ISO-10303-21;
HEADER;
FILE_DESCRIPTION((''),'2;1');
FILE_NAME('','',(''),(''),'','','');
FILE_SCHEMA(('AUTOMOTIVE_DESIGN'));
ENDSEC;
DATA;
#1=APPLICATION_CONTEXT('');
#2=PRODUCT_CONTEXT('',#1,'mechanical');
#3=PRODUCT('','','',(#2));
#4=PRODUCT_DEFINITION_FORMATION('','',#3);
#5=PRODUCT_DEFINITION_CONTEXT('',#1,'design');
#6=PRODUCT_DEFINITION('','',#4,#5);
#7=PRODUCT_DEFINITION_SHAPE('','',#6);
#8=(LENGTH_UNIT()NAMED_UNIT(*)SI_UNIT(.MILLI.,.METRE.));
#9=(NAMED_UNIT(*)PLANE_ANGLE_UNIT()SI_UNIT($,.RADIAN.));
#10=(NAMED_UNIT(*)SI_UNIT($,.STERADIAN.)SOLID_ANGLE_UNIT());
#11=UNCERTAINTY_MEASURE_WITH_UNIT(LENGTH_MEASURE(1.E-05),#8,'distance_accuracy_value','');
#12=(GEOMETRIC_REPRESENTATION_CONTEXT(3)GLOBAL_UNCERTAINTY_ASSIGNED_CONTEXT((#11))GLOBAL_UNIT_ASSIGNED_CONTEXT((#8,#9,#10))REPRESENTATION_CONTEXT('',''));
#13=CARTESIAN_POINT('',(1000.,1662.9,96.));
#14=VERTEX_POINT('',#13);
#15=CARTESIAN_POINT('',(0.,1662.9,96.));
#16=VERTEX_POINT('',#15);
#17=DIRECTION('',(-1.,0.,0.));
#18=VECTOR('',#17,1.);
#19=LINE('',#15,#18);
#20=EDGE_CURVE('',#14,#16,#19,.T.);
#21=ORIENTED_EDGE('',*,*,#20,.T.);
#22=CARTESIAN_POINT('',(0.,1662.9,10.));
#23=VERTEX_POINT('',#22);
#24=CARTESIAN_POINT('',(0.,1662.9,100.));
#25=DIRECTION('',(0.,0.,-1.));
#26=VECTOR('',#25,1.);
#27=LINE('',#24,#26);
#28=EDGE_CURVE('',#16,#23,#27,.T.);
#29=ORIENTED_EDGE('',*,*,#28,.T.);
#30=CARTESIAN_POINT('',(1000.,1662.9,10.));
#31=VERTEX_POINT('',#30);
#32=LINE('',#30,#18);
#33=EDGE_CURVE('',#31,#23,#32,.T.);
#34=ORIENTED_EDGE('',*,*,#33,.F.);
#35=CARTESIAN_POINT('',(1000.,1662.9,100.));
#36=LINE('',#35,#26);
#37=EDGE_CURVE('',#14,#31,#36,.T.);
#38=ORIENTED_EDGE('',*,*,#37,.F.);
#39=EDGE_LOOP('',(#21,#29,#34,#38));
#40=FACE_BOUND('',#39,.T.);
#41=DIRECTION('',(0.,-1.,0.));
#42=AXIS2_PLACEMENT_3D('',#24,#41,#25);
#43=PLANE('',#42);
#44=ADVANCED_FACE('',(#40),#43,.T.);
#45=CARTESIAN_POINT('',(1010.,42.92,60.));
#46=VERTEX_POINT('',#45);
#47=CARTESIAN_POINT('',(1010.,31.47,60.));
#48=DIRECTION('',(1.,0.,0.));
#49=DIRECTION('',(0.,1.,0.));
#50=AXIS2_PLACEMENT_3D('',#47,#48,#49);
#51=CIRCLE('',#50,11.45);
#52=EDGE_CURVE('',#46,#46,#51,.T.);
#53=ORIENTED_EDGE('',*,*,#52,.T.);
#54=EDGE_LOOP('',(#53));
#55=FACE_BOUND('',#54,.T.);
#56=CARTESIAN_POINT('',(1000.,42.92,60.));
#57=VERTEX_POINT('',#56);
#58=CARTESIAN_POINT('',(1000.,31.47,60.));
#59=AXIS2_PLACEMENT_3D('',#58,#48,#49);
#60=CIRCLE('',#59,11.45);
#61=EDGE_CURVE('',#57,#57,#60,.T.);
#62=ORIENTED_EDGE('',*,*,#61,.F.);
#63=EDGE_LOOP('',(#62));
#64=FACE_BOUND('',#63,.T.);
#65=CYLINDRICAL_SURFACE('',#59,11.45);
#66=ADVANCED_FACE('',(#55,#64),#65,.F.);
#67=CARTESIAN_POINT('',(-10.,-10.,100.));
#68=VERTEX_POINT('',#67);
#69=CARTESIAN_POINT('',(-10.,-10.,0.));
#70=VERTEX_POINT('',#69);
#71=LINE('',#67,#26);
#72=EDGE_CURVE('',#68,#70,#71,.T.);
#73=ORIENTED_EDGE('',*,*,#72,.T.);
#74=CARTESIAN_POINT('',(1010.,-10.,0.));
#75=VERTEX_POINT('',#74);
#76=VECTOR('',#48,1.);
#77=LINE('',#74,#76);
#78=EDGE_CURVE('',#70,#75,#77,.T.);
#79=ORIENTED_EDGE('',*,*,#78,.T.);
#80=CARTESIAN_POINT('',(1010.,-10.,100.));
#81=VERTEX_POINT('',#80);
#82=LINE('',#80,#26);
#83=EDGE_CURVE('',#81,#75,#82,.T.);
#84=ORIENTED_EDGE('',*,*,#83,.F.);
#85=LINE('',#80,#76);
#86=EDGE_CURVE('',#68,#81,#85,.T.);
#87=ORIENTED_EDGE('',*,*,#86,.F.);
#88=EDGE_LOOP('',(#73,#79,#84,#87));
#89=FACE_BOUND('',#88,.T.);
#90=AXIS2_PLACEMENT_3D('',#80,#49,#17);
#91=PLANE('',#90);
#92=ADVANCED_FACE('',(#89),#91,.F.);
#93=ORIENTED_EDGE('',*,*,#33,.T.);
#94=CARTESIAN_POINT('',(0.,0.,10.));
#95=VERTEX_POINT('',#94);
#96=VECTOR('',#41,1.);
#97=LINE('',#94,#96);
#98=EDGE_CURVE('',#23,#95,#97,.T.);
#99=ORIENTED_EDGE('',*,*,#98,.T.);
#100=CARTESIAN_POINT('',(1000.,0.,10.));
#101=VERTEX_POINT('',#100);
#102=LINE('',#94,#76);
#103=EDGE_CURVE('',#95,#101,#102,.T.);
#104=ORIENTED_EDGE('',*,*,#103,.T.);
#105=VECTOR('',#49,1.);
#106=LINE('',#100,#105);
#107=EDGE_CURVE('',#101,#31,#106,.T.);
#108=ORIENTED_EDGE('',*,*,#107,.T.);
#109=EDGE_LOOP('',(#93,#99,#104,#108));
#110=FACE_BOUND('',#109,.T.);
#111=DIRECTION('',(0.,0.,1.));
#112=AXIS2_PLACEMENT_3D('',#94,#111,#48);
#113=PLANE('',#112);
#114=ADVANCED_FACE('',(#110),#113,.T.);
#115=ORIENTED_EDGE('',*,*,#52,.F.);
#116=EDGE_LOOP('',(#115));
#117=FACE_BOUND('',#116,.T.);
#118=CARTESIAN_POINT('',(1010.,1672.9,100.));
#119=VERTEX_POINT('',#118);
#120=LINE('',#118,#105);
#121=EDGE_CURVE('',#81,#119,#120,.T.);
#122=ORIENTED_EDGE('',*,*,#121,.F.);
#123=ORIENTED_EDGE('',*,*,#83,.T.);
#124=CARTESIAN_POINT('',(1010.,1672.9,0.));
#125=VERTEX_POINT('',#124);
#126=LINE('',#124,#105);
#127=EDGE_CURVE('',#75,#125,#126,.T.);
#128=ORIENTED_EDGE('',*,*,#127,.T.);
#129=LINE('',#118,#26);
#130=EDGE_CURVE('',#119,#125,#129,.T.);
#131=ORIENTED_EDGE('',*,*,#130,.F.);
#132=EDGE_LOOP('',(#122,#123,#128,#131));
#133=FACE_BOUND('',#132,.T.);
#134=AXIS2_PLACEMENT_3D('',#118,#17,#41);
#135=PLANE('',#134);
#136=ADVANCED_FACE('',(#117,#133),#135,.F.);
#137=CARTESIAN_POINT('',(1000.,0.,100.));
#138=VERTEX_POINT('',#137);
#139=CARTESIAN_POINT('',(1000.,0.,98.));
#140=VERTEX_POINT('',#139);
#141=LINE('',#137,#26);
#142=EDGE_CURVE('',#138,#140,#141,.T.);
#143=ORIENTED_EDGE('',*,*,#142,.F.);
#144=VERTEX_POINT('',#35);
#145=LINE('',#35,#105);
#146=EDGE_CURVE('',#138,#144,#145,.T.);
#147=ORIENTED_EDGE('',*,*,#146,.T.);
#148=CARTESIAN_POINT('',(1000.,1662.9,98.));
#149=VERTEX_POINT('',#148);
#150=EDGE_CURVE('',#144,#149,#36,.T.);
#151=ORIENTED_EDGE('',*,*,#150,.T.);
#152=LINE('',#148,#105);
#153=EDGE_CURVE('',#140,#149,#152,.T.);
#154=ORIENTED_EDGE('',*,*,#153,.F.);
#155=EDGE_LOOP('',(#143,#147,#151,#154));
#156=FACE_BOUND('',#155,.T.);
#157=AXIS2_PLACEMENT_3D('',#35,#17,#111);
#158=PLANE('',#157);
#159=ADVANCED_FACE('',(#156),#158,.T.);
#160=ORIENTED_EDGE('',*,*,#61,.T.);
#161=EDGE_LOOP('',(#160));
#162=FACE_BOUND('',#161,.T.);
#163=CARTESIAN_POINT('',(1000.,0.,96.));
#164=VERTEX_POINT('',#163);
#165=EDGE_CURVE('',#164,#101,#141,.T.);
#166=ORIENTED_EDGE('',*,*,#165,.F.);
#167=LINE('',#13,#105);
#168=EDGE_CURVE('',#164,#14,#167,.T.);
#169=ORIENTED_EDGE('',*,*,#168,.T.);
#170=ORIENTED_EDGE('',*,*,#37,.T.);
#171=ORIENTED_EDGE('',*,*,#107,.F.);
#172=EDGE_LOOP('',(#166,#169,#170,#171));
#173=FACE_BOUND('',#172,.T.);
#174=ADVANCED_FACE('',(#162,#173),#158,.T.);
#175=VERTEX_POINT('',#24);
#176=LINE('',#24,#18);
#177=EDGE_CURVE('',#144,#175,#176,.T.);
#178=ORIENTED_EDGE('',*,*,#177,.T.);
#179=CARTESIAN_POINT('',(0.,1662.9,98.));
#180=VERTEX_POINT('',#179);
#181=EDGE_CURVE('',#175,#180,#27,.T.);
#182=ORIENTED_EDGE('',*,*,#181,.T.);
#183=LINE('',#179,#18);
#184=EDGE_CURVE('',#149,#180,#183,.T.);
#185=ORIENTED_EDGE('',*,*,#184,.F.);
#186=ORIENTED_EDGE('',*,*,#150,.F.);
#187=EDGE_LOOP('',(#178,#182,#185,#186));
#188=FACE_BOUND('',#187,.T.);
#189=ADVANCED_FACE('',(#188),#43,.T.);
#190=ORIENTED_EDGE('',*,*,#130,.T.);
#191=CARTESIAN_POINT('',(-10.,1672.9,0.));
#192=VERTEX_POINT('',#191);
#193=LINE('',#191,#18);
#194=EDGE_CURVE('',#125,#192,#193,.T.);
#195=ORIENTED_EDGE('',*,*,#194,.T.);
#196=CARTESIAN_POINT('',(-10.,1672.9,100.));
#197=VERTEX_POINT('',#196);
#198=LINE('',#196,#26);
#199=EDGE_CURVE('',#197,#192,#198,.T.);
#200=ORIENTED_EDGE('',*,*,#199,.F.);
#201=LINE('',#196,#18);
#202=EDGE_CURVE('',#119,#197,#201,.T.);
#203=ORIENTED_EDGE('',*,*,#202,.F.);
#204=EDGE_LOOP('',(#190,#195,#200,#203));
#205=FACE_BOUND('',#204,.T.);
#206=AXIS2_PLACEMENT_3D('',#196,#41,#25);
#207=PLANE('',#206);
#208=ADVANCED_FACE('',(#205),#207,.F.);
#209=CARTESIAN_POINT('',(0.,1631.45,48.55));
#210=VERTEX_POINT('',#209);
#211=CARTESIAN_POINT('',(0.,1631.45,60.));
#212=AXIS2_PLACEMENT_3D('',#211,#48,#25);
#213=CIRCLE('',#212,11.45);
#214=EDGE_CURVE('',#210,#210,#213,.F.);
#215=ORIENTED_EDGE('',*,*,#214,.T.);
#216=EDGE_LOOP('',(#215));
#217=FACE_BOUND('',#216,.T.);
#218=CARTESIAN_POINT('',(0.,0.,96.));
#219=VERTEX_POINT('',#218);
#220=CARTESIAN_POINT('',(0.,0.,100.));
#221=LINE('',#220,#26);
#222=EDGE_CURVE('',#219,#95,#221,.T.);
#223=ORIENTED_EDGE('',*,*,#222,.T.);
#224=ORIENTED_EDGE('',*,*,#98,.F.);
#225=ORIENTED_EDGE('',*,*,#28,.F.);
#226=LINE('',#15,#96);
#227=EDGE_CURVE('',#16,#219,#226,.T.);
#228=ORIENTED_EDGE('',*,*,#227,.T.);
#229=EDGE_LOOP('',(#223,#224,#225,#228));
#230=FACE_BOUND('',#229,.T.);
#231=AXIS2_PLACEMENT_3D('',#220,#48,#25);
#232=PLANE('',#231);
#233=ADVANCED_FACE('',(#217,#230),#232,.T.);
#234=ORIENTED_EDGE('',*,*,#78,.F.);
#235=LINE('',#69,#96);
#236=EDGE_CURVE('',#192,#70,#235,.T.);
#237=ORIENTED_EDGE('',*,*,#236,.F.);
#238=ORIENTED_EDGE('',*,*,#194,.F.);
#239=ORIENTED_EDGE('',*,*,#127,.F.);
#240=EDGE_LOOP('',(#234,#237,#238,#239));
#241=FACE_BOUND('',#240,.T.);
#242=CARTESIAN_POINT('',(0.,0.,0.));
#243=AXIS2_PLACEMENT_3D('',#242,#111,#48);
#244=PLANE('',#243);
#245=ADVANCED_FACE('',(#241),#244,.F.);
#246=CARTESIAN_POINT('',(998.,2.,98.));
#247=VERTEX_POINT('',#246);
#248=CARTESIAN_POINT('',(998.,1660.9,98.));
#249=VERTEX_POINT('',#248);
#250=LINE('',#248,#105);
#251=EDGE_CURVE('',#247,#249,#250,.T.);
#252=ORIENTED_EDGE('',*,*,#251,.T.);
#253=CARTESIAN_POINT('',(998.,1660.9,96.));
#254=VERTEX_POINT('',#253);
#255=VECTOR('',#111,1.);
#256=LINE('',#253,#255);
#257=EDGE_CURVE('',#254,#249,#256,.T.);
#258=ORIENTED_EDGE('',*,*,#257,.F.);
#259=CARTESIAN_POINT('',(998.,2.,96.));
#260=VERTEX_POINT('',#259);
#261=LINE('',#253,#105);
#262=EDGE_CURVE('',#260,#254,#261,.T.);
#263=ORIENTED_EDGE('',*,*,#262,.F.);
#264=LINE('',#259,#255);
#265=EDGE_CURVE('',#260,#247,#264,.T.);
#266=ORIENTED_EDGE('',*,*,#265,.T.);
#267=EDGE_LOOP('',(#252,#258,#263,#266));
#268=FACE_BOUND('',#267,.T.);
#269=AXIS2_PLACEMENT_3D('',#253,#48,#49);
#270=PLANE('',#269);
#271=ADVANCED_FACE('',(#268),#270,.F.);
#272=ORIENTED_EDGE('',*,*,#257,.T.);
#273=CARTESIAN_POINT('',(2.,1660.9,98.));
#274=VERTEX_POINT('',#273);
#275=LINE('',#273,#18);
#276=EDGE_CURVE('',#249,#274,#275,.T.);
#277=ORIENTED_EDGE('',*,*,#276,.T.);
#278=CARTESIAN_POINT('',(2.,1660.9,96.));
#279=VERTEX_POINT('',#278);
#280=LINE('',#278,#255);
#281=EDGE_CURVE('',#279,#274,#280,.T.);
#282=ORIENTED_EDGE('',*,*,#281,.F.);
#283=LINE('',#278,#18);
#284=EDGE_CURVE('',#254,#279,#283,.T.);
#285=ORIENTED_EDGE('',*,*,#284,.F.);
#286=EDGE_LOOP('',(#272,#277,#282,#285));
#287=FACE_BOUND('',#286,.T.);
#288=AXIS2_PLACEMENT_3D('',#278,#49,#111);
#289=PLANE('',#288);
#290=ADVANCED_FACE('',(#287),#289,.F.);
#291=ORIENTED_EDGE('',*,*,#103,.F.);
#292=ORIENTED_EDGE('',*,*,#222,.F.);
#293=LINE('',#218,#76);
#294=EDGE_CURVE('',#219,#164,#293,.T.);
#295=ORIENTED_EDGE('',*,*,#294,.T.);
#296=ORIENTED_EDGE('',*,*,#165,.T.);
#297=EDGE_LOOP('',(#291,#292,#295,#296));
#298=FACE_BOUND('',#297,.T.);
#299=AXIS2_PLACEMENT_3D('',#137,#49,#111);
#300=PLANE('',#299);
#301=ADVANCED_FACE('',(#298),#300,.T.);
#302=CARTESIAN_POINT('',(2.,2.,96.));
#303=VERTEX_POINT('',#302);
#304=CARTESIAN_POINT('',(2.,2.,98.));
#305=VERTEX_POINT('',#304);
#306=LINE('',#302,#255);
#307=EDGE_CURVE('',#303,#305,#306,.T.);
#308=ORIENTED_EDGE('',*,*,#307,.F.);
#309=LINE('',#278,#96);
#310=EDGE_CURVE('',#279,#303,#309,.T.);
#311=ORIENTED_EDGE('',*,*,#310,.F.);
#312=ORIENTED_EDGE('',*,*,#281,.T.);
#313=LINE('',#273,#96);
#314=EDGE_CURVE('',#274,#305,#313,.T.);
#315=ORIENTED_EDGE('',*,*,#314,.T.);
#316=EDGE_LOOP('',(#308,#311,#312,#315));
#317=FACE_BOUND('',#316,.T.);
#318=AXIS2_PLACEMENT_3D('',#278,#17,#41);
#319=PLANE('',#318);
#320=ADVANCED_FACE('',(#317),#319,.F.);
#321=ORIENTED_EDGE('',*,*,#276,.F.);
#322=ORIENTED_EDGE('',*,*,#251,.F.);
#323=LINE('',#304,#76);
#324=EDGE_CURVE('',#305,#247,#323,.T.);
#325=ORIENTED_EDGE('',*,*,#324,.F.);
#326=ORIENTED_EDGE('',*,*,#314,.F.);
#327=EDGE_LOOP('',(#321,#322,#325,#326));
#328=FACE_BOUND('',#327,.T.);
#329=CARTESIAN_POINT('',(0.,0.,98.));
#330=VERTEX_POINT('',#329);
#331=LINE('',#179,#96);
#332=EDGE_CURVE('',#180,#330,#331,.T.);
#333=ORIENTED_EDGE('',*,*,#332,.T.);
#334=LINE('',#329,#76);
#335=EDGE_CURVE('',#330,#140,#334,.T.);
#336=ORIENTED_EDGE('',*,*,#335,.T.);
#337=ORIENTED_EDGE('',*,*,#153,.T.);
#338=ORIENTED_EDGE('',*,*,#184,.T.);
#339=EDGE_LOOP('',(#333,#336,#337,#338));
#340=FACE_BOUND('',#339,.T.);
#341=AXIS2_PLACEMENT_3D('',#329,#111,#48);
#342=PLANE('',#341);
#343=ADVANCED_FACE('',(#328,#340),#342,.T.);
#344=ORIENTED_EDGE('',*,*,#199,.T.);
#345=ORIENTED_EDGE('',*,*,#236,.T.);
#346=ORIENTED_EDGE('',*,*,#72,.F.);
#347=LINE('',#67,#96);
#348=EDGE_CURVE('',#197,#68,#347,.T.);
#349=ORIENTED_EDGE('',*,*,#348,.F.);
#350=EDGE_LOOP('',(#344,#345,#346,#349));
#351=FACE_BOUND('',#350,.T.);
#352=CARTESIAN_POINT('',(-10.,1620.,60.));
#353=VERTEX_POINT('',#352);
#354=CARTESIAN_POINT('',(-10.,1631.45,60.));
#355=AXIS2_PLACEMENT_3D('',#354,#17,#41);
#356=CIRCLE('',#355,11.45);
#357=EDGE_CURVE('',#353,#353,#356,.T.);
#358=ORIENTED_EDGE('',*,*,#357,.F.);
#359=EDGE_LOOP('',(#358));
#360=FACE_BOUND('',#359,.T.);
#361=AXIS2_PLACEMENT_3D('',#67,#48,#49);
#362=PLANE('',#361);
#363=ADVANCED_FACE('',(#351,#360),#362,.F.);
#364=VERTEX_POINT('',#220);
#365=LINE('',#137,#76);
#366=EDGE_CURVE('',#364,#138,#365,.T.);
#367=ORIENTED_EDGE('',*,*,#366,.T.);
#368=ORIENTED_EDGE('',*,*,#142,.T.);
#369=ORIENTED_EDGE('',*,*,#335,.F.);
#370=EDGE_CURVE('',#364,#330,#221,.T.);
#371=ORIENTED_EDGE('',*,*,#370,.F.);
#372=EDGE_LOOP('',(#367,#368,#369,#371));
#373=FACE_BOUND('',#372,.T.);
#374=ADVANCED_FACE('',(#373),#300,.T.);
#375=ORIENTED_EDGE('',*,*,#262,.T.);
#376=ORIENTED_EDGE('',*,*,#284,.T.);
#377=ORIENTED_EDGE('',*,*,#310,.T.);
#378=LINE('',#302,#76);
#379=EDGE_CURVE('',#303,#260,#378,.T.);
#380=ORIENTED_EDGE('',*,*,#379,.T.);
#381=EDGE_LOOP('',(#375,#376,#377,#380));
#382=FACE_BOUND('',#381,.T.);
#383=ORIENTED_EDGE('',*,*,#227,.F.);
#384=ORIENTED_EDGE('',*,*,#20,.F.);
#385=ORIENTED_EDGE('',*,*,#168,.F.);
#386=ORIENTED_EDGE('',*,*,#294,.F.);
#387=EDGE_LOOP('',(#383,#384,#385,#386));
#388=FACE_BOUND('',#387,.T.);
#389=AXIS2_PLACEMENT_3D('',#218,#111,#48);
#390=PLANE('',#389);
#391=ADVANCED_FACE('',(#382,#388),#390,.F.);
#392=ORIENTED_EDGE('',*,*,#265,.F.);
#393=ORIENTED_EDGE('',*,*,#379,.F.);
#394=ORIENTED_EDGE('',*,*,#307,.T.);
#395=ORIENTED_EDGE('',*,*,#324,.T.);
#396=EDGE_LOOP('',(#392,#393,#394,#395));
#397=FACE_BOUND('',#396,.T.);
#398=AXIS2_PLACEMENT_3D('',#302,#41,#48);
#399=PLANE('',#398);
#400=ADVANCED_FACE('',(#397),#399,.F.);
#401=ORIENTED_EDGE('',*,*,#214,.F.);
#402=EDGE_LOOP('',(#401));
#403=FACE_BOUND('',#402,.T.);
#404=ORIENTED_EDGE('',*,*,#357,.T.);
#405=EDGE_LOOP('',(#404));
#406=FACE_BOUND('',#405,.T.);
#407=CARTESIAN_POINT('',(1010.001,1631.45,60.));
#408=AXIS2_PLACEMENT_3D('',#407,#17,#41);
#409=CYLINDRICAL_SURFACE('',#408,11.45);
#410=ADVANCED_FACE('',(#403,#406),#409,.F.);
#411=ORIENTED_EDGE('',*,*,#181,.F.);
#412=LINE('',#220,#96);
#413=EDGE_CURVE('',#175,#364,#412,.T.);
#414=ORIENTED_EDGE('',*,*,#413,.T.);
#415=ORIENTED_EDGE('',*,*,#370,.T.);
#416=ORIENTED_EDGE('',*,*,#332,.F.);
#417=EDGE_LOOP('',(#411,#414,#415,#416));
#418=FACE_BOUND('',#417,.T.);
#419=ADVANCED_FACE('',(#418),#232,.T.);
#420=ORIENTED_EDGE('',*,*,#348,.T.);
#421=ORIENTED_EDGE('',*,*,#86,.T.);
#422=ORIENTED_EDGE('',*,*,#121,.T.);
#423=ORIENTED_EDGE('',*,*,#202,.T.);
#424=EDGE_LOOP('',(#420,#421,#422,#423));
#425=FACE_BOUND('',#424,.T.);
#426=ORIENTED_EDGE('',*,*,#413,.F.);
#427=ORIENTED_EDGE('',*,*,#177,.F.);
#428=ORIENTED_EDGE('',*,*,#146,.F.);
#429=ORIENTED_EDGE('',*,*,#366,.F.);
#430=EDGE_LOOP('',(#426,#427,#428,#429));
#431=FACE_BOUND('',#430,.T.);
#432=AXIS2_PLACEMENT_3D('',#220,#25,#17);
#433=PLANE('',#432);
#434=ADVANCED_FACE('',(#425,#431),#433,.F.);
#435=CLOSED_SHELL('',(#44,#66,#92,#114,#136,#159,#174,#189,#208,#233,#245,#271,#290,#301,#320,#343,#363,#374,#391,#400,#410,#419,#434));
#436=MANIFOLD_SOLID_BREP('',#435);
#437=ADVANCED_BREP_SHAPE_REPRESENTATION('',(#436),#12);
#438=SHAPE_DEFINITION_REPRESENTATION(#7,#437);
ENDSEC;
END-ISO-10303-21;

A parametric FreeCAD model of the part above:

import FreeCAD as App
import Part
import Sketcher


def add_polygon(sketch, points):
    """Adds a closed chain of lines whose ends are joined by coincident constraints."""
    first, n = sketch.GeometryCount, len(points)
    for a, b in zip(points, points[1:] + points[:1]):
        sketch.addGeometry(Part.LineSegment(App.Vector(*a, 0), App.Vector(*b, 0)), False)
    for i in range(n):
        sketch.addConstraint(Sketcher.Constraint("Coincident", first + i, 2, first + (i + 1) % n, 1))

doc = App.newDocument("Part")
params = doc.addObject("Spreadsheet::Sheet", "Params")
for row, (alias, value) in enumerate([
    ("sketch1_width", "1000 mm"),
    ("sketch1_height", "1662.9 mm"),
    ("pad1_length", "10 mm"),
    ("sketch2_width", "1020 mm"),
    ("sketch2_width2", "1000 mm"),
    ("sketch2_height", "1682.9 mm"),
    ("sketch2_height2", "1662.9 mm"),
    ("pad2_length", "100 mm"),
    ("sketch3_diameter", "22.9 mm"),
    ("sketch4_diameter", "22.9 mm"),
    ("pocket2_length", "10 mm"),
    ("sketch5_width", "1000 mm"),
    ("sketch5_width2", "996 mm"),
    ("sketch5_height", "1662.9 mm"),
    ("sketch5_height2", "1658.9 mm"),
    ("pad3_length", "2 mm"),
], start=1):
    params.set(f"A{row}", alias)
    params.set(f"B{row}", "=" + value)
    params.setAlias(f"B{row}", alias)

body = doc.addObject("PartDesign::Body", "Body")

# Sketch on XY plane
sketch1 = body.newObject("Sketcher::SketchObject", "Sketch")
sketch1.AttachmentSupport = (doc.getObject("XY_Plane"), [""])
sketch1.MapMode = "FlatFace"
add_polygon(sketch1, [(0, 1663), (0, 0), (1000, 0), (1000, 1663)])  # lines 0-3
sketch1.addConstraint([
    Sketcher.Constraint("Vertical", 0),
    Sketcher.Constraint("Horizontal", 1),
    Sketcher.Constraint("Vertical", 2),
    Sketcher.Constraint("Horizontal", 3),
    Sketcher.Constraint("Coincident", 0, 2, -1, 1),
    Sketcher.Constraint("DistanceX", 1, 1, 1, 2, 1000.0),
    Sketcher.Constraint("DistanceY", 0, 2, 0, 1, 1662.9),
])
sketch1.setExpression("Constraints[9]", "Params.sketch1_width")
sketch1.setExpression("Constraints[10]", "Params.sketch1_height")
pad1 = body.newObject("PartDesign::Pad", "Pad")
pad1.Profile = sketch1
pad1.setExpression("Length", "Params.pad1_length")

# Sketch on XY plane
sketch2 = body.newObject("Sketcher::SketchObject", "Sketch001")
sketch2.AttachmentSupport = (doc.getObject("XY_Plane"), [""])
sketch2.MapMode = "FlatFace"
add_polygon(sketch2, [(-10, 1673), (-10, -10), (1010, -10), (1010, 1673)])  # lines 0-3
add_polygon(sketch2, [(1000, 0), (0, 0), (0, 1663), (1000, 1663)])  # lines 4-7
sketch2.addConstraint([
    Sketcher.Constraint("Vertical", 0),
    Sketcher.Constraint("Horizontal", 1),
    Sketcher.Constraint("Vertical", 2),
    Sketcher.Constraint("Horizontal", 3),
    Sketcher.Constraint("Horizontal", 4),
    Sketcher.Constraint("Vertical", 5),
    Sketcher.Constraint("Horizontal", 6),
    Sketcher.Constraint("Vertical", 7),
    Sketcher.Constraint("Coincident", 4, 2, -1, 1),
    Sketcher.Constraint("DistanceX", 1, 1, 1, 2, 1020.0),
    Sketcher.Constraint("DistanceX", 4, 2, 4, 1, 1000.0),
    Sketcher.Constraint("DistanceY", 0, 2, 0, 1, 1682.9),
    Sketcher.Constraint("DistanceY", 5, 1, 5, 2, 1662.9),
    Sketcher.Constraint("DistanceX", 0, 2, -1, 1, 10.0),
    Sketcher.Constraint("DistanceY", 0, 2, -1, 1, 10.0),
])
sketch2.setExpression("Constraints[17]", "Params.sketch2_width")
sketch2.setExpression("Constraints[18]", "Params.sketch2_width2")
sketch2.setExpression("Constraints[19]", "Params.sketch2_height")
sketch2.setExpression("Constraints[20]", "Params.sketch2_height2")
pad2 = body.newObject("PartDesign::Pad", "Pad001")
pad2.Profile = sketch2
pad2.setExpression("Length", "Params.pad2_length")

# Sketch on YZ plane
sketch3 = body.newObject("Sketcher::SketchObject", "Sketch002")
sketch3.AttachmentSupport = (doc.getObject("YZ_Plane"), [""])
sketch3.MapMode = "FlatFace"
sketch3.AttachmentOffset = App.Placement(App.Vector(0, 0, -10), App.Rotation())
sketch3.addGeometry(Part.Circle(App.Vector(1631, 60, 0), App.Vector(0, 0, 1), 11), False)
sketch3.addConstraint([
    Sketcher.Constraint("Diameter", 0, 22.9),
    Sketcher.Constraint("DistanceY", -1, 1, 0, 3, 60.0),
    Sketcher.Constraint("DistanceX", -1, 1, 0, 3, 1631.45),
])
sketch3.setExpression("Constraints[0]", "Params.sketch3_diameter")
pocket1 = body.newObject("PartDesign::Pocket", "Pocket")
pocket1.Profile = sketch3
pocket1.Type = "UpToFirst"
pocket1.Reversed = True

# Sketch on YZ plane
sketch4 = body.newObject("Sketcher::SketchObject", "Sketch003")
sketch4.AttachmentSupport = (doc.getObject("YZ_Plane"), [""])
sketch4.MapMode = "FlatFace"
sketch4.AttachmentOffset = App.Placement(App.Vector(0, 0, 1010), App.Rotation())
sketch4.addGeometry(Part.Circle(App.Vector(31, 60, 0), App.Vector(0, 0, 1), 11), False)
sketch4.addConstraint([
    Sketcher.Constraint("Diameter", 0, 22.9),
    Sketcher.Constraint("DistanceY", -1, 1, 0, 3, 60.0),
    Sketcher.Constraint("DistanceX", -1, 1, 0, 3, 31.47),
])
sketch4.setExpression("Constraints[0]", "Params.sketch4_diameter")
pocket2 = body.newObject("PartDesign::Pocket", "Pocket001")
pocket2.Profile = sketch4
pocket2.setExpression("Length", "Params.pocket2_length")

# Sketch on XY plane
sketch5 = body.newObject("Sketcher::SketchObject", "Sketch004")
sketch5.AttachmentSupport = (doc.getObject("XY_Plane"), [""])
sketch5.MapMode = "FlatFace"
sketch5.AttachmentOffset = App.Placement(App.Vector(0, 0, 98), App.Rotation())
add_polygon(sketch5, [(0, 1663), (0, 0), (1000, 0), (1000, 1663)])  # lines 0-3
add_polygon(sketch5, [(998, 2), (2, 2), (2, 1661), (998, 1661)])  # lines 4-7
sketch5.addConstraint([
    Sketcher.Constraint("Vertical", 0),
    Sketcher.Constraint("Horizontal", 1),
    Sketcher.Constraint("Vertical", 2),
    Sketcher.Constraint("Horizontal", 3),
    Sketcher.Constraint("Horizontal", 4),
    Sketcher.Constraint("Vertical", 5),
    Sketcher.Constraint("Horizontal", 6),
    Sketcher.Constraint("Vertical", 7),
    Sketcher.Constraint("Coincident", 0, 2, -1, 1),
    Sketcher.Constraint("DistanceX", 1, 1, 1, 2, 1000.0),
    Sketcher.Constraint("DistanceX", 4, 2, 4, 1, 996.0),
    Sketcher.Constraint("DistanceY", 0, 2, 0, 1, 1662.9),
    Sketcher.Constraint("DistanceY", 5, 1, 5, 2, 1658.9),
    Sketcher.Constraint("DistanceX", -1, 1, 4, 2, 2.0),
    Sketcher.Constraint("DistanceY", -1, 1, 4, 2, 2.0),
])
sketch5.setExpression("Constraints[17]", "Params.sketch5_width")
sketch5.setExpression("Constraints[18]", "Params.sketch5_width2")
sketch5.setExpression("Constraints[19]", "Params.sketch5_height")
sketch5.setExpression("Constraints[20]", "Params.sketch5_height2")
pad3 = body.newObject("PartDesign::Pad", "Pad002")
pad3.Profile = sketch5
pad3.setExpression("Length", "Params.pad3_length")
pad3.Reversed = True

doc.recompute()
